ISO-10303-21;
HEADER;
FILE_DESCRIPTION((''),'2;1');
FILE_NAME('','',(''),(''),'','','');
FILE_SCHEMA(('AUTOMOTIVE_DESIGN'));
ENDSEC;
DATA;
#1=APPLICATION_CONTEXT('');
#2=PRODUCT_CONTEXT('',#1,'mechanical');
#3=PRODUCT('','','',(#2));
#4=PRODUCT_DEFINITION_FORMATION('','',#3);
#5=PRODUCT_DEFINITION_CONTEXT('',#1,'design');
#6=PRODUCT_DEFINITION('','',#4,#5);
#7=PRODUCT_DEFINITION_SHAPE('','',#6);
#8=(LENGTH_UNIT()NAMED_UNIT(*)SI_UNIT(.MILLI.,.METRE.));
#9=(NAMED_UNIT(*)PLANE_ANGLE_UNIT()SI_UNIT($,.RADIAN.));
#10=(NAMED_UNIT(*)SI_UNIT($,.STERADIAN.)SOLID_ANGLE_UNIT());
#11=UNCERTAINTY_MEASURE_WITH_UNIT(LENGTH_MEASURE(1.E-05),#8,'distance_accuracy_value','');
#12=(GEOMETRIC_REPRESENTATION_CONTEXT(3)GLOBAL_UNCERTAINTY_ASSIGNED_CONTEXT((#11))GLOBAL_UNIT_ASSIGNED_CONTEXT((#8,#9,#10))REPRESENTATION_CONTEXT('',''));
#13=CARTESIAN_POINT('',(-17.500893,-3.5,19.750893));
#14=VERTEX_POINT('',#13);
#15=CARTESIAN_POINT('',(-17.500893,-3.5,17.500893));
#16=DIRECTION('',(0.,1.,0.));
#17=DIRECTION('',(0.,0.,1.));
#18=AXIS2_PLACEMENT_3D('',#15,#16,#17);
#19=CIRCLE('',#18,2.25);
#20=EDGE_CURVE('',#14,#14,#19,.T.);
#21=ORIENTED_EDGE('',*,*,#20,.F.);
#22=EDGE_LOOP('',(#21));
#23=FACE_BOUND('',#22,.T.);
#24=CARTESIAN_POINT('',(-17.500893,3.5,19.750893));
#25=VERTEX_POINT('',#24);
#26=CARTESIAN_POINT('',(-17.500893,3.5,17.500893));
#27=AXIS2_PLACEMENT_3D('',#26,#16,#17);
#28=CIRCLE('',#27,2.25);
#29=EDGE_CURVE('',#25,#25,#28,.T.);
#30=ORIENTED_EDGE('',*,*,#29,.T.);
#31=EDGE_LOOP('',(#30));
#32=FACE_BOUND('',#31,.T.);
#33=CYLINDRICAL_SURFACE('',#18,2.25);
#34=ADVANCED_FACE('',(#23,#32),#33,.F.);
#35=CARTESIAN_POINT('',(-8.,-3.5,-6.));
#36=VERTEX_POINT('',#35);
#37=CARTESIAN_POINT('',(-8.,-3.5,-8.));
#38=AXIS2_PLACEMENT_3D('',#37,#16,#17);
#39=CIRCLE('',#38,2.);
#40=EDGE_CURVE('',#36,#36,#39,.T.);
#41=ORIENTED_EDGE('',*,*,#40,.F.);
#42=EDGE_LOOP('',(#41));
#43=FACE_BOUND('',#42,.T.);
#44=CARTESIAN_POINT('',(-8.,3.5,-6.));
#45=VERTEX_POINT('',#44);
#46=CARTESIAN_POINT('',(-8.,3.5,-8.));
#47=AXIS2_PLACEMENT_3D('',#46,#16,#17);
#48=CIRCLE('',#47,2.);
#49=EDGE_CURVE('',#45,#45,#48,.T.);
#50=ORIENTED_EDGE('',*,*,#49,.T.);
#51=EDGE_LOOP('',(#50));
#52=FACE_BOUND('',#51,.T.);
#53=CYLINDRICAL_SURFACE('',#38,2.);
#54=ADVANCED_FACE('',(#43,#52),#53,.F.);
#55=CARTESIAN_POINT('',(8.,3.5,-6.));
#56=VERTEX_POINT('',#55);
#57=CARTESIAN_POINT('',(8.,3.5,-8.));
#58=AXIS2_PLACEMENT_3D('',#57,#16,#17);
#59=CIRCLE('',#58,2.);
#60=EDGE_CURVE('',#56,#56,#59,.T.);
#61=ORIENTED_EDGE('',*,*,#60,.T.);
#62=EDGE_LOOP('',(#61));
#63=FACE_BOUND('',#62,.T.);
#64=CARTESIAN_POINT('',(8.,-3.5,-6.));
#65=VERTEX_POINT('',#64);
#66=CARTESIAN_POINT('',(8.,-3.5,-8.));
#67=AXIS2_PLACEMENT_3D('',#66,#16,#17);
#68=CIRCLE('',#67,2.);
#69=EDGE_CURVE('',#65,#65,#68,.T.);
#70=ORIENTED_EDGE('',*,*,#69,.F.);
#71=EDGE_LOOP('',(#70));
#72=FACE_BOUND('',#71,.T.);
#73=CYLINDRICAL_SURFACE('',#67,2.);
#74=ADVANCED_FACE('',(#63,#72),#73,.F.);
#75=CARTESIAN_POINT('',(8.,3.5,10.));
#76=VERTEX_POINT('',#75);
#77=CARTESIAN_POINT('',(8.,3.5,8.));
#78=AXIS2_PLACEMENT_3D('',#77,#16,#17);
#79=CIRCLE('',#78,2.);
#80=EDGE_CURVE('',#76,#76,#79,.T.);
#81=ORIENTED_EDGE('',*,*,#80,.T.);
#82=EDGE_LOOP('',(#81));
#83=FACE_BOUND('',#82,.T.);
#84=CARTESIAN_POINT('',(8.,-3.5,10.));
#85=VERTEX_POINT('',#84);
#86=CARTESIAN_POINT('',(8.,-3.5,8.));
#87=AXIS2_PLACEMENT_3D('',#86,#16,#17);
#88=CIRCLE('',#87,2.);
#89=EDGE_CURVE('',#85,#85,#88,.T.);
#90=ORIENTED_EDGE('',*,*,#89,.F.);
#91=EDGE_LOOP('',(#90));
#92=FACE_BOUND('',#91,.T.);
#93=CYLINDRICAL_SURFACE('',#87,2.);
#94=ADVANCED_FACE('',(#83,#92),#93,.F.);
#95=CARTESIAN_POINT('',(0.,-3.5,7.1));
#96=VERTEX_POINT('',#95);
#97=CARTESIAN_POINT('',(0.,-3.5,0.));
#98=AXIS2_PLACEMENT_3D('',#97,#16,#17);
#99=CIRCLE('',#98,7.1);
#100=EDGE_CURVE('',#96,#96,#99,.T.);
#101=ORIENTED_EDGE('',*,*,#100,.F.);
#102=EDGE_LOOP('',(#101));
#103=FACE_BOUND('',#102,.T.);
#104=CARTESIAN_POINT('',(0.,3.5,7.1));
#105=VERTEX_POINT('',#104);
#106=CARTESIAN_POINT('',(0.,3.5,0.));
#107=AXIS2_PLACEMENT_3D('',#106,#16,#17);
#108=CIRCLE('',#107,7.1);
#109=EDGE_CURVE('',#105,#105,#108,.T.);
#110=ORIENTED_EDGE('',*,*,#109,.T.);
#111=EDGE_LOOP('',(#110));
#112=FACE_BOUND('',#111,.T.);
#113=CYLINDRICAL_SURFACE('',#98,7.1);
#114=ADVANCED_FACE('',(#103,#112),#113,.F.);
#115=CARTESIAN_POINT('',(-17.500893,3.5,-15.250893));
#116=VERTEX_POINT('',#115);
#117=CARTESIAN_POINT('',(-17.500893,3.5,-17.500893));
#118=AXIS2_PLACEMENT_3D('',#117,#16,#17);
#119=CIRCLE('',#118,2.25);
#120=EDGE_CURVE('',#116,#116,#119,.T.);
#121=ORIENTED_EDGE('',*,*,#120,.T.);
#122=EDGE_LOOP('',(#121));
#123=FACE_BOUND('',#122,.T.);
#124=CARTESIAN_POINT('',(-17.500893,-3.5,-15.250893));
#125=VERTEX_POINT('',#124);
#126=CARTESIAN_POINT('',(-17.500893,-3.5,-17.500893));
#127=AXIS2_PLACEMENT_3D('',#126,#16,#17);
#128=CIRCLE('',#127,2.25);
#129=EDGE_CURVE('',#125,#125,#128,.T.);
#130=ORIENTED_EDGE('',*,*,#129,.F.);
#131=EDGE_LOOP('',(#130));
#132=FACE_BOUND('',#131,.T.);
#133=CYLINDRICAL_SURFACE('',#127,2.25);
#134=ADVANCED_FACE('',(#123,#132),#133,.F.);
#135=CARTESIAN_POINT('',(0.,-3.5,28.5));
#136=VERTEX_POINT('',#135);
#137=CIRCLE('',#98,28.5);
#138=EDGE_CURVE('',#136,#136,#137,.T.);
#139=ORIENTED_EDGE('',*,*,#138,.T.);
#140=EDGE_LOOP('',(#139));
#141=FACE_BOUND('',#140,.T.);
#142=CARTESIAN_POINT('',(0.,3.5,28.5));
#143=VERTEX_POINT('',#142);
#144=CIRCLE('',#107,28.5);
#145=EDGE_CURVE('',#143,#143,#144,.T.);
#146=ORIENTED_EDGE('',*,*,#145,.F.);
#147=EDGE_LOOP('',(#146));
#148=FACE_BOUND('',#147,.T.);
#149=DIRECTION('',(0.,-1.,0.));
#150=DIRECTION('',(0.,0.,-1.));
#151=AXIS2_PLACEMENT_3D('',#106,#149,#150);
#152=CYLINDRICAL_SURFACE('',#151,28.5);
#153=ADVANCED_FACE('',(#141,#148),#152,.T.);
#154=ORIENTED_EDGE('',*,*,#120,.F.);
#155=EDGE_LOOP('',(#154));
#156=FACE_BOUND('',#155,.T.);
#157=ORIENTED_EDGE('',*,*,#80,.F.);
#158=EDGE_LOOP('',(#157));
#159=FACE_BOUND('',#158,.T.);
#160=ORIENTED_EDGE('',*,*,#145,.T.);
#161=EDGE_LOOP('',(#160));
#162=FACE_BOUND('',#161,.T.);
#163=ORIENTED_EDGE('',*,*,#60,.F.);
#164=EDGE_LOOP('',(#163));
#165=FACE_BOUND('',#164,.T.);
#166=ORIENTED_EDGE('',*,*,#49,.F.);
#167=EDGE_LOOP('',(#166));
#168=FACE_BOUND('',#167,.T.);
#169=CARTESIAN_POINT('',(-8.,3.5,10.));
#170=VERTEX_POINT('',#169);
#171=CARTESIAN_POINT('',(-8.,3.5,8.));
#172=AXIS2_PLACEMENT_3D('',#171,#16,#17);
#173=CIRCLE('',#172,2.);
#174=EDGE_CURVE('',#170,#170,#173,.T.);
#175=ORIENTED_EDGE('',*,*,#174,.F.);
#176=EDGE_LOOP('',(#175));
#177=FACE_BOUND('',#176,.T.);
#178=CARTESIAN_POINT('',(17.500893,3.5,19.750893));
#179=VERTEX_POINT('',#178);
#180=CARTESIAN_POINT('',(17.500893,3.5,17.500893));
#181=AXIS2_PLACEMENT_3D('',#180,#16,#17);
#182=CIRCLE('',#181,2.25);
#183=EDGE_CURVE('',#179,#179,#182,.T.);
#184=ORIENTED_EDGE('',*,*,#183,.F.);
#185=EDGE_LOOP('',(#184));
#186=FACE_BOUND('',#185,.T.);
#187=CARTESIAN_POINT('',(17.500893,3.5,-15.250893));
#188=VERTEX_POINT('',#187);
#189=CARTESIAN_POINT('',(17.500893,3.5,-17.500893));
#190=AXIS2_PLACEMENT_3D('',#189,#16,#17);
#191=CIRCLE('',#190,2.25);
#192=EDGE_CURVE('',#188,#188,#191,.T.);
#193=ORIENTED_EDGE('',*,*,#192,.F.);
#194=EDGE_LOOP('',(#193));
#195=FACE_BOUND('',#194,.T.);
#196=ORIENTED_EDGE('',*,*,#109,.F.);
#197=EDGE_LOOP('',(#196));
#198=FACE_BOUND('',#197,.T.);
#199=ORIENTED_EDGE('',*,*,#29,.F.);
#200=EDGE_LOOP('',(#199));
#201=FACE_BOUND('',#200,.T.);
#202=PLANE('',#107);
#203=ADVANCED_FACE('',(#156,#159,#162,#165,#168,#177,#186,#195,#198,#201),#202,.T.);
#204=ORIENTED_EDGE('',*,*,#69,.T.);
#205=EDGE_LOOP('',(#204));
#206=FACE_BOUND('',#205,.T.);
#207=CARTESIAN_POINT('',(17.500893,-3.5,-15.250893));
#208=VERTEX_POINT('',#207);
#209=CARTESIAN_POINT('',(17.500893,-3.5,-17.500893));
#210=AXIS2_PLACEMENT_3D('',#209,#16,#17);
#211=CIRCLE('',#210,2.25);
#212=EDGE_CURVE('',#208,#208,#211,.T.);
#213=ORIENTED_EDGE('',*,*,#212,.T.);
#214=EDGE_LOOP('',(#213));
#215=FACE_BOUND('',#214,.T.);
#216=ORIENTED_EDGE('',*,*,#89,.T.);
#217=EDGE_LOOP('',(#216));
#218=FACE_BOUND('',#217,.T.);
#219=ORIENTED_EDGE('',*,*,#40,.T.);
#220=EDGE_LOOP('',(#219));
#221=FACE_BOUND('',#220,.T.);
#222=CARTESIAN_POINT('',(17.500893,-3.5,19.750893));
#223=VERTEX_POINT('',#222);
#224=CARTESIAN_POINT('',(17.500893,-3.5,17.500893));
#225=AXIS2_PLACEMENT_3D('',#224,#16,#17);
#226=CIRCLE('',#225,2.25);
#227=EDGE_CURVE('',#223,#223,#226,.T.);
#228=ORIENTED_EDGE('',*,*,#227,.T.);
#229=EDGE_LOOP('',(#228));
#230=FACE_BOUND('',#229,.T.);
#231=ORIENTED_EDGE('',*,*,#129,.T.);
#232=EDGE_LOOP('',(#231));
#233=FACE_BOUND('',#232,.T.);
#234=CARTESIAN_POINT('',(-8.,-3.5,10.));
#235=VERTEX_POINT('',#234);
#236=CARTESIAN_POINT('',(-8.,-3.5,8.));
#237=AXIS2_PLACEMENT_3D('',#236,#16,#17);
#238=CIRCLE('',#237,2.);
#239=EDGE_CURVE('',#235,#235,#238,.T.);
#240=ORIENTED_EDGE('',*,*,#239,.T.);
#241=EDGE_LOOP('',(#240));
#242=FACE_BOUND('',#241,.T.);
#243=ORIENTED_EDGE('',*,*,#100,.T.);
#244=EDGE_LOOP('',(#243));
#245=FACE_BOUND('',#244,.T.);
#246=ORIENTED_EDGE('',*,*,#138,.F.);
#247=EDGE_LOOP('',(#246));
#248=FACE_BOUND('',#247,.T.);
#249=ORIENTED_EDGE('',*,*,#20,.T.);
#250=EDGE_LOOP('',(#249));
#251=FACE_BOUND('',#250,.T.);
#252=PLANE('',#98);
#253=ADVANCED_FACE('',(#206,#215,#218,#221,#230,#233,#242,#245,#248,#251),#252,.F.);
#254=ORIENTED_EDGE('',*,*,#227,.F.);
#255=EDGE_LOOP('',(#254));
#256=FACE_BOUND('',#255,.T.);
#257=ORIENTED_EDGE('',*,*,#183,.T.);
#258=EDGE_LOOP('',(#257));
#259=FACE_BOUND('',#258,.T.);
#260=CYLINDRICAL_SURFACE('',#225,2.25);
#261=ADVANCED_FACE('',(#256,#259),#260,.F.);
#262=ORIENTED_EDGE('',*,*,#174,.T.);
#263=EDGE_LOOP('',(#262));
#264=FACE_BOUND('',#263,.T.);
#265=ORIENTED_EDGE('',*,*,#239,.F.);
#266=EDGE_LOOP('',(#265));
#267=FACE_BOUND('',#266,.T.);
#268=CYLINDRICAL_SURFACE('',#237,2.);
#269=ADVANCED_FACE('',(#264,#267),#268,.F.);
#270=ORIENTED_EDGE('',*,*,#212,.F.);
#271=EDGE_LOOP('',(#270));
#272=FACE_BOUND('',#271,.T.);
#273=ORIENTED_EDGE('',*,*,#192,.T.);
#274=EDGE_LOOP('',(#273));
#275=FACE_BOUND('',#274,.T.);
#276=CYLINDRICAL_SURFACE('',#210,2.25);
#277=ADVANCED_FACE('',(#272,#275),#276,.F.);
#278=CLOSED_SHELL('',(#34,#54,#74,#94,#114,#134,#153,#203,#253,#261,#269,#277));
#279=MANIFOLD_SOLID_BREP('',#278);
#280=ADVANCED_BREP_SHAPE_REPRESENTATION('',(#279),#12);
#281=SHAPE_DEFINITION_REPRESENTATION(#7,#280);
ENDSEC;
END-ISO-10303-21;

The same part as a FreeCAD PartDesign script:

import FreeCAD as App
import Part
import Sketcher
from FreeCAD import Vector

doc = App.newDocument("Part")
params = doc.addObject("Spreadsheet::Sheet", "Params")
for row, (alias, value) in enumerate([
    ("sketch1_diameter", "57 mm"),
    ("pad1_length", "7 mm"),
    ("sketch2_diameter", "4 mm"),
    ("sketch2_diameter2", "4.5 mm"),
    ("sketch3_diameter", "14.2 mm"),
], start=1):
    params.set(f"A{row}", alias)
    params.set(f"B{row}", "=" + value)
    params.setAlias(f"B{row}", alias)

body = doc.addObject("PartDesign::Body", "Body")

sketch1 = doc.addObject("Sketcher::SketchObject", "Sketch")
body.addObject(sketch1)
sketch1.AttachmentSupport = (doc.XZ_Plane, [""])
sketch1.MapMode = "FlatFace"
sketch1.addGeometry(Part.Circle(Vector(0, 0, 0), Vector(0, 0, 1), 28.5), False)
sketch1.addConstraint([
    Sketcher.Constraint("Coincident", 0, 3, -1, 1),
    Sketcher.Constraint("Diameter", 0, 57.0),
])
sketch1.setExpression("Constraints[1]", "Params.sketch1_diameter")
pad1 = doc.addObject("PartDesign::Pad", "Pad")
body.addObject(pad1)
pad1.Profile = sketch1
pad1.setExpression("Length", "Params.pad1_length")
pad1.Midplane = True

sketch2 = doc.addObject("Sketcher::SketchObject", "Sketch001")
body.addObject(sketch2)
sketch2.AttachmentSupport = (doc.XZ_Plane, [""])
sketch2.MapMode = "FlatFace"
sketch2.AttachmentOffset = App.Placement(Vector(0, 0, -3.5), App.Rotation())
sketch2.addGeometry([
    Part.Circle(Vector(17.500893, -17.500893, 0), Vector(0, 0, 1), 2.25),
    Part.Circle(Vector(17.500893, 17.500893, 0), Vector(0, 0, 1), 2.25),
    Part.Circle(Vector(-17.500893, 17.500893, 0), Vector(0, 0, 1), 2.25),
    Part.Circle(Vector(-17.500893, -17.500893, 0), Vector(0, 0, 1), 2.25),
    Part.Circle(Vector(-8, 8, 0), Vector(0, 0, 1), 2),
    Part.Circle(Vector(-8, -8, 0), Vector(0, 0, 1), 2),
    Part.Circle(Vector(8, -8, 0), Vector(0, 0, 1), 2),
    Part.Circle(Vector(8, 8, 0), Vector(0, 0, 1), 2),
], False)
sketch2.addConstraint([
    Sketcher.Constraint("Equal", 0, 1),
    Sketcher.Constraint("Equal", 1, 2),
    Sketcher.Constraint("Equal", 2, 3),
    Sketcher.Constraint("Equal", 4, 5),
    Sketcher.Constraint("Equal", 5, 6),
    Sketcher.Constraint("Equal", 6, 7),
    Sketcher.Constraint("Symmetric", 0, 3, 2, 3, -1, 1),
    Sketcher.Constraint("Symmetric", 1, 3, 3, 3, -1, 1),
    Sketcher.Constraint("Symmetric", 4, 3, 6, 3, -1, 1),
    Sketcher.Constraint("Symmetric", 5, 3, 7, 3, -1, 1),
    Sketcher.Constraint("Symmetric", 1, 3, 2, 3, -2),
    Sketcher.Constraint("Symmetric", 5, 3, 6, 3, -2),
    Sketcher.Constraint("Diameter", 4, 4.0),
    Sketcher.Constraint("Diameter", 0, 4.5),
    Sketcher.Constraint("DistanceX", 4, 3, -1, 1, 8.0),
    Sketcher.Constraint("DistanceY", -1, 1, 4, 3, 8.0),
    Sketcher.Constraint("DistanceX", -1, 1, 0, 3, 17.500893),
    Sketcher.Constraint("DistanceY", 0, 3, -1, 1, 17.500893),
])
sketch2.setExpression("Constraints[12]", "Params.sketch2_diameter")
sketch2.setExpression("Constraints[13]", "Params.sketch2_diameter2")
pocket1 = doc.addObject("PartDesign::Pocket", "Pocket")
body.addObject(pocket1)
pocket1.Profile = sketch2
pocket1.Type = "ThroughAll"
pocket1.Reversed = True

sketch3 = doc.addObject("Sketcher::SketchObject", "Sketch002")
body.addObject(sketch3)
sketch3.AttachmentSupport = (doc.XZ_Plane, [""])
sketch3.MapMode = "FlatFace"
sketch3.AttachmentOffset = App.Placement(Vector(0, 0, -3.5), App.Rotation())
sketch3.addGeometry(Part.Circle(Vector(0, 0, 0), Vector(0, 0, 1), 7.1), False)
sketch3.addConstraint([
    Sketcher.Constraint("Coincident", 0, 3, -1, 1),
    Sketcher.Constraint("Diameter", 0, 14.2),
])
sketch3.setExpression("Constraints[1]", "Params.sketch3_diameter")
pocket2 = doc.addObject("PartDesign::Pocket", "Pocket001")
body.addObject(pocket2)
pocket2.Profile = sketch3
pocket2.Type = "ThroughAll"
pocket2.Reversed = True

doc.recompute()
